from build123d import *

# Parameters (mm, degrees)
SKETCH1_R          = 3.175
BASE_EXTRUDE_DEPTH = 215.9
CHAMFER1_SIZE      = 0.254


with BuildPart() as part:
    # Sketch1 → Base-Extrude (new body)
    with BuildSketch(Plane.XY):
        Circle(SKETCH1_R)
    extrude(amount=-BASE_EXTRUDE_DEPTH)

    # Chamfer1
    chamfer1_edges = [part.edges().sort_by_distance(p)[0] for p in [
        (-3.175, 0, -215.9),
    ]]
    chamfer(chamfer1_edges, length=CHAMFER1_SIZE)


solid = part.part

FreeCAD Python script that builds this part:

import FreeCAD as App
import Part
import Sketcher
Q = App.Units.Quantity


def edges_at(feature, points):
    """Names of the edges that pass closest to the given points."""
    edges = feature.Shape.Edges
    near = lambda p: min(range(len(edges)), key=lambda i: edges[i].distToShape(Part.Vertex(*p))[0])
    return sorted({f"Edge{near(p) + 1}" for p in points})

doc = App.newDocument("Part")
body = doc.addObject("PartDesign::Body", "Body")

# Sketch on XY plane
sketch1 = doc.addObject("Sketcher::SketchObject", "Sketch")
body.addObject(sketch1)
sketch1.AttachmentSupport = (doc.XY_Plane, [""])
sketch1.MapMode = "FlatFace"
sketch1.addGeometry(Part.Circle(App.Vector(0, 0, 0), App.Vector(0, 0, 1), 3.175), False)
sketch1.addConstraint([
    Sketcher.Constraint("Coincident", 0, 3, -1, 1),
    Sketcher.Constraint("Diameter", 0, Q("0.25 in")),
])
pad1 = doc.addObject("PartDesign::Pad", "Pad")
body.addObject(pad1)
pad1.Profile = sketch1
pad1.Length = Q("8.5 in")
pad1.Reversed = True
doc.recompute()

chamfer = doc.addObject("PartDesign::Chamfer", "Chamfer")
body.addObject(chamfer)
chamfer.Base = (pad1, edges_at(pad1, [(-3.175, 0, -215.9)]))
chamfer.Size = Q("0.01 in")

doc.recompute()
